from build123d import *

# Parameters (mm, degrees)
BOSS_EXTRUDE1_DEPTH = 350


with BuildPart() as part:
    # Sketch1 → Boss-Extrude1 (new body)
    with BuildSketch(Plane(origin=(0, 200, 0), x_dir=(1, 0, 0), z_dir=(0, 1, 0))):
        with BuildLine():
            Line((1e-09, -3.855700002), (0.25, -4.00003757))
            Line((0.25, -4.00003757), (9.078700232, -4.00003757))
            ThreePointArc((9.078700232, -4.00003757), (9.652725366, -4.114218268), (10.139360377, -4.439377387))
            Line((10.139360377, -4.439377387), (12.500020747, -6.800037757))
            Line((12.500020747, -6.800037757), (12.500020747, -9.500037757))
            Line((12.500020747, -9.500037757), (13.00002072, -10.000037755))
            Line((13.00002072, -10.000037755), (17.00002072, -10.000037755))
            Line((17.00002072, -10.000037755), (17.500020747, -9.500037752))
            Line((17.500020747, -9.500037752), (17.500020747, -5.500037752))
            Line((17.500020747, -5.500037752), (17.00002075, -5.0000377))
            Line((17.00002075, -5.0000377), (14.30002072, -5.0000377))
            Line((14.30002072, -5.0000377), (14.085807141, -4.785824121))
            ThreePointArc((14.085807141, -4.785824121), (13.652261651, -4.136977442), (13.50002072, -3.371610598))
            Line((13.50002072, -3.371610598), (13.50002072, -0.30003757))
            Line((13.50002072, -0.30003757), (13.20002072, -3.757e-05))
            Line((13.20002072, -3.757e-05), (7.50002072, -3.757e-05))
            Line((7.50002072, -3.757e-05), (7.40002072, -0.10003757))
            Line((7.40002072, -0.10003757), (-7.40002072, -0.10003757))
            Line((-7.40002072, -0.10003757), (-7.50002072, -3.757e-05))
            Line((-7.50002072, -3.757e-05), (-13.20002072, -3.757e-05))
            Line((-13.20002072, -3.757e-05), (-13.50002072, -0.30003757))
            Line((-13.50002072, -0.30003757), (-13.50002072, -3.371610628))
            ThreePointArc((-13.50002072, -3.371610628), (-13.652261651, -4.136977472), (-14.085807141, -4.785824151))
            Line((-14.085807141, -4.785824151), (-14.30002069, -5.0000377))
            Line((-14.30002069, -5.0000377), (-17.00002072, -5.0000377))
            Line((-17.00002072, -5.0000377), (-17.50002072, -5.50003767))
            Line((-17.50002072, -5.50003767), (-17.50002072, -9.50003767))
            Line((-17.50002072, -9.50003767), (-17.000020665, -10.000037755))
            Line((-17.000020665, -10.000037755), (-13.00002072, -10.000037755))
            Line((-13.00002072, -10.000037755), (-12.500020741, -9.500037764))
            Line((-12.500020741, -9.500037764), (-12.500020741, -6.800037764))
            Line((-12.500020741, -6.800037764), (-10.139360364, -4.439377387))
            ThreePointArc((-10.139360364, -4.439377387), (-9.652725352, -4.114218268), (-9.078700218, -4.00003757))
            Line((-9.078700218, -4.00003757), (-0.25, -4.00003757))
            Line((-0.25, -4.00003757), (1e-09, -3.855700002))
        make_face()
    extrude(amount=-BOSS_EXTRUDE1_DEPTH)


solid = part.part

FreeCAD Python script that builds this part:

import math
import FreeCAD as App
import Part
import Sketcher
Q = App.Units.Quantity

doc = App.newDocument("Part")
params = doc.addObject("Spreadsheet::Sheet", "Params")
for row, (alias, value) in enumerate([
    ("sketch1_radius", "2 mm"),
    ("sketch1_radius2", "1.5 mm"),
    ("sketch1_width", "4 mm"),
    ("sketch1_width2", "2.7 mm"),
    ("sketch1_width3", "5.7 mm"),
    ("pad1_length", "350 mm"),
], start=1):
    params.set(f"A{row}", alias)
    params.set(f"B{row}", "=" + value)
    params.setAlias(f"B{row}", alias)

body = doc.addObject("PartDesign::Body", "Body")

sketch1 = doc.addObject("Sketcher::SketchObject", "Sketch")
body.addObject(sketch1)
sketch1.AttachmentSupport = (doc.XZ_Plane, [""])
sketch1.MapMode = "FlatFace"
sketch1.AttachmentOffset = App.Placement(App.Vector(0, 0, -200), App.Rotation())
sketch1.addGeometry(Part.LineSegment(App.Vector(0, 3.86, 0), App.Vector(0.25, 4, 0)), False)
sketch1.addGeometry(Part.LineSegment(App.Vector(0.25, 4, 0), App.Vector(9.08, 4, 0)), False)
sketch1.addGeometry(Part.ArcOfCircle(Part.Circle(App.Vector(9.08, 5.5, 0), App.Vector(0, 0, 1), 1.5), math.radians(-90), math.radians(-45)), False)
sketch1.addGeometry(Part.LineSegment(App.Vector(10.14, 4.44, 0), App.Vector(12.5, 6.8, 0)), False)
sketch1.addGeometry(Part.LineSegment(App.Vector(12.5, 6.8, 0), App.Vector(12.5, 9.5, 0)), False)
sketch1.addGeometry(Part.LineSegment(App.Vector(12.5, 9.5, 0), App.Vector(13, 10, 0)), False)
sketch1.addGeometry(Part.LineSegment(App.Vector(13, 10, 0), App.Vector(17, 10, 0)), False)
sketch1.addGeometry(Part.LineSegment(App.Vector(17, 10, 0), App.Vector(17.5, 9.5, 0)), False)
sketch1.addGeometry(Part.LineSegment(App.Vector(17.5, 9.5, 0), App.Vector(17.5, 5.5, 0)), False)
sketch1.addGeometry(Part.LineSegment(App.Vector(17.5, 5.5, 0), App.Vector(17, 5, 0)), False)
sketch1.addGeometry(Part.LineSegment(App.Vector(17, 5, 0), App.Vector(14.3, 5, 0)), False)
sketch1.addGeometry(Part.LineSegment(App.Vector(14.3, 5, 0), App.Vector(14.09, 4.79, 0)), False)
sketch1.addGeometry(Part.ArcOfCircle(Part.Circle(App.Vector(15.5, 3.37, 0), App.Vector(0, 0, 1), 2), math.radians(135), math.radians(180)), False)
sketch1.addGeometry(Part.LineSegment(App.Vector(13.5, 3.37, 0), App.Vector(13.5, 0.3, 0)), False)
sketch1.addGeometry(Part.LineSegment(App.Vector(13.5, 0.3, 0), App.Vector(13.2, 0, 0)), False)
sketch1.addGeometry(Part.LineSegment(App.Vector(13.2, 0, 0), App.Vector(7.5, 0, 0)), False)
sketch1.addGeometry(Part.LineSegment(App.Vector(7.5, 0, 0), App.Vector(7.4, 0.1, 0)), False)
sketch1.addGeometry(Part.LineSegment(App.Vector(7.4, 0.1, 0), App.Vector(-7.4, 0.1, 0)), False)
sketch1.addGeometry(Part.LineSegment(App.Vector(-7.4, 0.1, 0), App.Vector(-7.5, 0, 0)), False)
sketch1.addGeometry(Part.LineSegment(App.Vector(-7.5, 0, 0), App.Vector(-13.2, 0, 0)), False)
sketch1.addGeometry(Part.LineSegment(App.Vector(-13.2, 0, 0), App.Vector(-13.5, 0.3, 0)), False)
sketch1.addGeometry(Part.LineSegment(App.Vector(-13.5, 0.3, 0), App.Vector(-13.5, 3.37, 0)), False)
sketch1.addGeometry(Part.ArcOfCircle(Part.Circle(App.Vector(-15.5, 3.37, 0), App.Vector(0, 0, 1), 2), math.radians(0), math.radians(45)), False)
sketch1.addGeometry(Part.LineSegment(App.Vector(-14.09, 4.79, 0), App.Vector(-14.3, 5, 0)), False)
sketch1.addGeometry(Part.LineSegment(App.Vector(-14.3, 5, 0), App.Vector(-17, 5, 0)), False)
sketch1.addGeometry(Part.LineSegment(App.Vector(-17, 5, 0), App.Vector(-17.5, 5.5, 0)), False)
sketch1.addGeometry(Part.LineSegment(App.Vector(-17.5, 5.5, 0), App.Vector(-17.5, 9.5, 0)), False)
sketch1.addGeometry(Part.LineSegment(App.Vector(-17.5, 9.5, 0), App.Vector(-17, 10, 0)), False)
sketch1.addGeometry(Part.LineSegment(App.Vector(-17, 10, 0), App.Vector(-13, 10, 0)), False)
sketch1.addGeometry(Part.LineSegment(App.Vector(-13, 10, 0), App.Vector(-12.5, 9.5, 0)), False)
sketch1.addGeometry(Part.LineSegment(App.Vector(-12.5, 9.5, 0), App.Vector(-12.5, 6.8, 0)), False)
sketch1.addGeometry(Part.LineSegment(App.Vector(-12.5, 6.8, 0), App.Vector(-10.14, 4.44, 0)), False)
sketch1.addGeometry(Part.ArcOfCircle(Part.Circle(App.Vector(-9.08, 5.5, 0), App.Vector(0, 0, 1), 1.5), math.radians(-135), math.radians(-90)), False)
sketch1.addGeometry(Part.LineSegment(App.Vector(-9.08, 4, 0), App.Vector(-0.25, 4, 0)), False)
sketch1.addGeometry(Part.LineSegment(App.Vector(-0.25, 4, 0), App.Vector(0, 3.86, 0)), False)
sketch1.addConstraint(Sketcher.Constraint("Coincident", 0, 2, 1, 1))
sketch1.addConstraint(Sketcher.Constraint("Tangent", 1, 2, 2, 1))
sketch1.addConstraint(Sketcher.Constraint("Tangent", 2, 2, 3, 1))
sketch1.addConstraint(Sketcher.Constraint("Coincident", 3, 2, 4, 1))
sketch1.addConstraint(Sketcher.Constraint("Coincident", 4, 2, 5, 1))
sketch1.addConstraint(Sketcher.Constraint("Coincident", 5, 2, 6, 1))
sketch1.addConstraint(Sketcher.Constraint("Coincident", 6, 2, 7, 1))
sketch1.addConstraint(Sketcher.Constraint("Coincident", 7, 2, 8, 1))
sketch1.addConstraint(Sketcher.Constraint("Coincident", 8, 2, 9, 1))
sketch1.addConstraint(Sketcher.Constraint("Coincident", 9, 2, 10, 1))
sketch1.addConstraint(Sketcher.Constraint("Coincident", 10, 2, 11, 1))
sketch1.addConstraint(Sketcher.Constraint("Tangent", 11, 2, 12, 1))
sketch1.addConstraint(Sketcher.Constraint("Tangent", 12, 2, 13, 1))
sketch1.addConstraint(Sketcher.Constraint("Coincident", 13, 2, 14, 1))
sketch1.addConstraint(Sketcher.Constraint("Coincident", 14, 2, 15, 1))
sketch1.addConstraint(Sketcher.Constraint("Coincident", 15, 2, 16, 1))
sketch1.addConstraint(Sketcher.Constraint("Coincident", 16, 2, 17, 1))
sketch1.addConstraint(Sketcher.Constraint("Coincident", 17, 2, 18, 1))
sketch1.addConstraint(Sketcher.Constraint("Coincident", 18, 2, 19, 1))
sketch1.addConstraint(Sketcher.Constraint("Coincident", 19, 2, 20, 1))
sketch1.addConstraint(Sketcher.Constraint("Coincident", 20, 2, 21, 1))
sketch1.addConstraint(Sketcher.Constraint("Tangent", 21, 2, 22, 1))
sketch1.addConstraint(Sketcher.Constraint("Tangent", 22, 2, 23, 1))
sketch1.addConstraint(Sketcher.Constraint("Coincident", 23, 2, 24, 1))
sketch1.addConstraint(Sketcher.Constraint("Coincident", 24, 2, 25, 1))
sketch1.addConstraint(Sketcher.Constraint("Coincident", 25, 2, 26, 1))
sketch1.addConstraint(Sketcher.Constraint("Coincident", 26, 2, 27, 1))
sketch1.addConstraint(Sketcher.Constraint("Coincident", 27, 2, 28, 1))
sketch1.addConstraint(Sketcher.Constraint("Coincident", 28, 2, 29, 1))
sketch1.addConstraint(Sketcher.Constraint("Coincident", 29, 2, 30, 1))
sketch1.addConstraint(Sketcher.Constraint("Coincident", 30, 2, 31, 1))
sketch1.addConstraint(Sketcher.Constraint("Tangent", 31, 2, 32, 1))
sketch1.addConstraint(Sketcher.Constraint("Tangent", 32, 2, 33, 1))
sketch1.addConstraint(Sketcher.Constraint("Coincident", 33, 2, 34, 1))
sketch1.addConstraint(Sketcher.Constraint("Coincident", 34, 2, 0, 1))
sketch1.addConstraint(Sketcher.Constraint("Horizontal", 1))
sketch1.addConstraint(Sketcher.Constraint("Vertical", 4))
sketch1.addConstraint(Sketcher.Constraint("Horizontal", 6))
sketch1.addConstraint(Sketcher.Constraint("Vertical", 8))
sketch1.addConstraint(Sketcher.Constraint("Horizontal", 10))
sketch1.addConstraint(Sketcher.Constraint("Vertical", 13))
sketch1.addConstraint(Sketcher.Constraint("Horizontal", 15))
sketch1.addConstraint(Sketcher.Constraint("Horizontal", 17))
sketch1.addConstraint(Sketcher.Constraint("Horizontal", 19))
sketch1.addConstraint(Sketcher.Constraint("Vertical", 21))
sketch1.addConstraint(Sketcher.Constraint("Horizontal", 24))
sketch1.addConstraint(Sketcher.Constraint("Vertical", 26))
sketch1.addConstraint(Sketcher.Constraint("Horizontal", 28))
sketch1.addConstraint(Sketcher.Constraint("Vertical", 30))
sketch1.addConstraint(Sketcher.Constraint("Horizontal", 33))
sketch1.addConstraint(Sketcher.Constraint("Equal", 12, 22))
sketch1.addConstraint(Sketcher.Constraint("Equal", 2, 32))
sketch1.addConstraint(Sketcher.Constraint("Symmetric", 12, 3, 22, 3, -2))
sketch1.addConstraint(Sketcher.Constraint("Symmetric", 2, 3, 32, 3, -2))
sketch1.addConstraint(Sketcher.Constraint("Symmetric", 15, 2, 18, 2, -2))
sketch1.addConstraint(Sketcher.Constraint("Symmetric", 10, 2, 23, 2, -2))
sketch1.addConstraint(Sketcher.Constraint("Symmetric", 8, 2, 25, 2, -2))
sketch1.addConstraint(Sketcher.Constraint("Symmetric", 6, 2, 27, 2, -2))
sketch1.addConstraint(Sketcher.Constraint("Symmetric", 4, 2, 29, 2, -2))
sketch1.addConstraint(Sketcher.Constraint("PointOnObject", 34, 2, -2))
sketch1.addConstraint(Sketcher.Constraint("Parallel", 3, 5))
sketch1.addConstraint(Sketcher.Constraint("Perpendicular", 5, 7))
sketch1.addConstraint(Sketcher.Constraint("Perpendicular", 7, 9))
sketch1.addConstraint(Sketcher.Constraint("Parallel", 9, 11))
sketch1.addConstraint(Sketcher.Constraint("Parallel", 11, 14))
sketch1.addConstraint(Sketcher.Constraint("Perpendicular", 14, 16))
sketch1.addConstraint(Sketcher.Constraint("Perpendicular", 16, 18))
sketch1.addConstraint(Sketcher.Constraint("Perpendicular", 18, 20))
sketch1.addConstraint(Sketcher.Constraint("Parallel", 20, 23))
sketch1.addConstraint(Sketcher.Constraint("Parallel", 23, 25))
sketch1.addConstraint(Sketcher.Constraint("Perpendicular", 25, 27))
sketch1.addConstraint(Sketcher.Constraint("Perpendicular", 27, 29))
sketch1.addConstraint(Sketcher.Constraint("Parallel", 29, 31))
sketch1.addConstraint(Sketcher.Constraint("Horizontal", 4, 2, 7, 2))
sketch1.addConstraint(Sketcher.Constraint("Horizontal", 32, 3, 8, 2))
sketch1.addConstraint(Sketcher.Constraint("Horizontal", 13, 2, 20, 2))
sketch1.addConstraint(Sketcher.Constraint("Vertical", 6, 2, 9, 2))
sketch1.addConstraint(Sketcher.Constraint("Equal", 1, 33))
sketch1.addConstraint(Sketcher.Constraint("Equal", 24, 4))
sketch1.addConstraint(Sketcher.Constraint("Equal", 28, 8))
sketch1.addConstraint(Sketcher.Constraint("Radius", 12, Q("2 mm")))
sketch1.addConstraint(Sketcher.Constraint("Radius", 2, Q("1.5 mm")))
sketch1.addConstraint(Sketcher.Constraint("DistanceX", 6, 1, 6, 2, Q("4 mm")))
sketch1.addConstraint(Sketcher.Constraint("Angle", 0, Q("30 deg")))
sketch1.addConstraint(Sketcher.Constraint("DistanceX", 10, 2, 10, 1, Q("2.7 mm")))
sketch1.addConstraint(Sketcher.Constraint("DistanceX", 15, 2, 15, 1, Q("5.7 mm")))
sketch1.addConstraint(Sketcher.Constraint("DistanceX", 3, 2, 12, 3, Q("3 mm")))
sketch1.addConstraint(Sketcher.Constraint("DistanceX", 4, 2, 7, 2, Q("5 mm")))
sketch1.addConstraint(Sketcher.Constraint("DistanceY", 14, 2, 10, 2, Q("5 mm")))
sketch1.addConstraint(Sketcher.Constraint("DistanceX", 15, 2, 13, 2, Q("6 mm")))
sketch1.addConstraint(Sketcher.Constraint("DistanceX", 16, 2, 15, 2, Q("0.1 mm")))
sketch1.addConstraint(Sketcher.Constraint("DistanceX", 33, 2, 0, 2, Q("0.5 mm")))
sketch1.addConstraint(Sketcher.Constraint("DistanceX", 1, 1, 1, 2, Q("8.8287 mm")))
sketch1.addConstraint(Sketcher.Constraint("DistanceY", -1, 1, 34, 2, Q("3.8557 mm")))
sketch1.setExpression("Constraints[80]", "Params.sketch1_radius")
sketch1.setExpression("Constraints[81]", "Params.sketch1_radius2")
sketch1.setExpression("Constraints[82]", "Params.sketch1_width")
sketch1.setExpression("Constraints[84]", "Params.sketch1_width2")
sketch1.setExpression("Constraints[85]", "Params.sketch1_width3")
pad1 = doc.addObject("PartDesign::Pad", "Pad")
body.addObject(pad1)
pad1.Profile = sketch1
pad1.setExpression("Length", "Params.pad1_length")

doc.recompute()
